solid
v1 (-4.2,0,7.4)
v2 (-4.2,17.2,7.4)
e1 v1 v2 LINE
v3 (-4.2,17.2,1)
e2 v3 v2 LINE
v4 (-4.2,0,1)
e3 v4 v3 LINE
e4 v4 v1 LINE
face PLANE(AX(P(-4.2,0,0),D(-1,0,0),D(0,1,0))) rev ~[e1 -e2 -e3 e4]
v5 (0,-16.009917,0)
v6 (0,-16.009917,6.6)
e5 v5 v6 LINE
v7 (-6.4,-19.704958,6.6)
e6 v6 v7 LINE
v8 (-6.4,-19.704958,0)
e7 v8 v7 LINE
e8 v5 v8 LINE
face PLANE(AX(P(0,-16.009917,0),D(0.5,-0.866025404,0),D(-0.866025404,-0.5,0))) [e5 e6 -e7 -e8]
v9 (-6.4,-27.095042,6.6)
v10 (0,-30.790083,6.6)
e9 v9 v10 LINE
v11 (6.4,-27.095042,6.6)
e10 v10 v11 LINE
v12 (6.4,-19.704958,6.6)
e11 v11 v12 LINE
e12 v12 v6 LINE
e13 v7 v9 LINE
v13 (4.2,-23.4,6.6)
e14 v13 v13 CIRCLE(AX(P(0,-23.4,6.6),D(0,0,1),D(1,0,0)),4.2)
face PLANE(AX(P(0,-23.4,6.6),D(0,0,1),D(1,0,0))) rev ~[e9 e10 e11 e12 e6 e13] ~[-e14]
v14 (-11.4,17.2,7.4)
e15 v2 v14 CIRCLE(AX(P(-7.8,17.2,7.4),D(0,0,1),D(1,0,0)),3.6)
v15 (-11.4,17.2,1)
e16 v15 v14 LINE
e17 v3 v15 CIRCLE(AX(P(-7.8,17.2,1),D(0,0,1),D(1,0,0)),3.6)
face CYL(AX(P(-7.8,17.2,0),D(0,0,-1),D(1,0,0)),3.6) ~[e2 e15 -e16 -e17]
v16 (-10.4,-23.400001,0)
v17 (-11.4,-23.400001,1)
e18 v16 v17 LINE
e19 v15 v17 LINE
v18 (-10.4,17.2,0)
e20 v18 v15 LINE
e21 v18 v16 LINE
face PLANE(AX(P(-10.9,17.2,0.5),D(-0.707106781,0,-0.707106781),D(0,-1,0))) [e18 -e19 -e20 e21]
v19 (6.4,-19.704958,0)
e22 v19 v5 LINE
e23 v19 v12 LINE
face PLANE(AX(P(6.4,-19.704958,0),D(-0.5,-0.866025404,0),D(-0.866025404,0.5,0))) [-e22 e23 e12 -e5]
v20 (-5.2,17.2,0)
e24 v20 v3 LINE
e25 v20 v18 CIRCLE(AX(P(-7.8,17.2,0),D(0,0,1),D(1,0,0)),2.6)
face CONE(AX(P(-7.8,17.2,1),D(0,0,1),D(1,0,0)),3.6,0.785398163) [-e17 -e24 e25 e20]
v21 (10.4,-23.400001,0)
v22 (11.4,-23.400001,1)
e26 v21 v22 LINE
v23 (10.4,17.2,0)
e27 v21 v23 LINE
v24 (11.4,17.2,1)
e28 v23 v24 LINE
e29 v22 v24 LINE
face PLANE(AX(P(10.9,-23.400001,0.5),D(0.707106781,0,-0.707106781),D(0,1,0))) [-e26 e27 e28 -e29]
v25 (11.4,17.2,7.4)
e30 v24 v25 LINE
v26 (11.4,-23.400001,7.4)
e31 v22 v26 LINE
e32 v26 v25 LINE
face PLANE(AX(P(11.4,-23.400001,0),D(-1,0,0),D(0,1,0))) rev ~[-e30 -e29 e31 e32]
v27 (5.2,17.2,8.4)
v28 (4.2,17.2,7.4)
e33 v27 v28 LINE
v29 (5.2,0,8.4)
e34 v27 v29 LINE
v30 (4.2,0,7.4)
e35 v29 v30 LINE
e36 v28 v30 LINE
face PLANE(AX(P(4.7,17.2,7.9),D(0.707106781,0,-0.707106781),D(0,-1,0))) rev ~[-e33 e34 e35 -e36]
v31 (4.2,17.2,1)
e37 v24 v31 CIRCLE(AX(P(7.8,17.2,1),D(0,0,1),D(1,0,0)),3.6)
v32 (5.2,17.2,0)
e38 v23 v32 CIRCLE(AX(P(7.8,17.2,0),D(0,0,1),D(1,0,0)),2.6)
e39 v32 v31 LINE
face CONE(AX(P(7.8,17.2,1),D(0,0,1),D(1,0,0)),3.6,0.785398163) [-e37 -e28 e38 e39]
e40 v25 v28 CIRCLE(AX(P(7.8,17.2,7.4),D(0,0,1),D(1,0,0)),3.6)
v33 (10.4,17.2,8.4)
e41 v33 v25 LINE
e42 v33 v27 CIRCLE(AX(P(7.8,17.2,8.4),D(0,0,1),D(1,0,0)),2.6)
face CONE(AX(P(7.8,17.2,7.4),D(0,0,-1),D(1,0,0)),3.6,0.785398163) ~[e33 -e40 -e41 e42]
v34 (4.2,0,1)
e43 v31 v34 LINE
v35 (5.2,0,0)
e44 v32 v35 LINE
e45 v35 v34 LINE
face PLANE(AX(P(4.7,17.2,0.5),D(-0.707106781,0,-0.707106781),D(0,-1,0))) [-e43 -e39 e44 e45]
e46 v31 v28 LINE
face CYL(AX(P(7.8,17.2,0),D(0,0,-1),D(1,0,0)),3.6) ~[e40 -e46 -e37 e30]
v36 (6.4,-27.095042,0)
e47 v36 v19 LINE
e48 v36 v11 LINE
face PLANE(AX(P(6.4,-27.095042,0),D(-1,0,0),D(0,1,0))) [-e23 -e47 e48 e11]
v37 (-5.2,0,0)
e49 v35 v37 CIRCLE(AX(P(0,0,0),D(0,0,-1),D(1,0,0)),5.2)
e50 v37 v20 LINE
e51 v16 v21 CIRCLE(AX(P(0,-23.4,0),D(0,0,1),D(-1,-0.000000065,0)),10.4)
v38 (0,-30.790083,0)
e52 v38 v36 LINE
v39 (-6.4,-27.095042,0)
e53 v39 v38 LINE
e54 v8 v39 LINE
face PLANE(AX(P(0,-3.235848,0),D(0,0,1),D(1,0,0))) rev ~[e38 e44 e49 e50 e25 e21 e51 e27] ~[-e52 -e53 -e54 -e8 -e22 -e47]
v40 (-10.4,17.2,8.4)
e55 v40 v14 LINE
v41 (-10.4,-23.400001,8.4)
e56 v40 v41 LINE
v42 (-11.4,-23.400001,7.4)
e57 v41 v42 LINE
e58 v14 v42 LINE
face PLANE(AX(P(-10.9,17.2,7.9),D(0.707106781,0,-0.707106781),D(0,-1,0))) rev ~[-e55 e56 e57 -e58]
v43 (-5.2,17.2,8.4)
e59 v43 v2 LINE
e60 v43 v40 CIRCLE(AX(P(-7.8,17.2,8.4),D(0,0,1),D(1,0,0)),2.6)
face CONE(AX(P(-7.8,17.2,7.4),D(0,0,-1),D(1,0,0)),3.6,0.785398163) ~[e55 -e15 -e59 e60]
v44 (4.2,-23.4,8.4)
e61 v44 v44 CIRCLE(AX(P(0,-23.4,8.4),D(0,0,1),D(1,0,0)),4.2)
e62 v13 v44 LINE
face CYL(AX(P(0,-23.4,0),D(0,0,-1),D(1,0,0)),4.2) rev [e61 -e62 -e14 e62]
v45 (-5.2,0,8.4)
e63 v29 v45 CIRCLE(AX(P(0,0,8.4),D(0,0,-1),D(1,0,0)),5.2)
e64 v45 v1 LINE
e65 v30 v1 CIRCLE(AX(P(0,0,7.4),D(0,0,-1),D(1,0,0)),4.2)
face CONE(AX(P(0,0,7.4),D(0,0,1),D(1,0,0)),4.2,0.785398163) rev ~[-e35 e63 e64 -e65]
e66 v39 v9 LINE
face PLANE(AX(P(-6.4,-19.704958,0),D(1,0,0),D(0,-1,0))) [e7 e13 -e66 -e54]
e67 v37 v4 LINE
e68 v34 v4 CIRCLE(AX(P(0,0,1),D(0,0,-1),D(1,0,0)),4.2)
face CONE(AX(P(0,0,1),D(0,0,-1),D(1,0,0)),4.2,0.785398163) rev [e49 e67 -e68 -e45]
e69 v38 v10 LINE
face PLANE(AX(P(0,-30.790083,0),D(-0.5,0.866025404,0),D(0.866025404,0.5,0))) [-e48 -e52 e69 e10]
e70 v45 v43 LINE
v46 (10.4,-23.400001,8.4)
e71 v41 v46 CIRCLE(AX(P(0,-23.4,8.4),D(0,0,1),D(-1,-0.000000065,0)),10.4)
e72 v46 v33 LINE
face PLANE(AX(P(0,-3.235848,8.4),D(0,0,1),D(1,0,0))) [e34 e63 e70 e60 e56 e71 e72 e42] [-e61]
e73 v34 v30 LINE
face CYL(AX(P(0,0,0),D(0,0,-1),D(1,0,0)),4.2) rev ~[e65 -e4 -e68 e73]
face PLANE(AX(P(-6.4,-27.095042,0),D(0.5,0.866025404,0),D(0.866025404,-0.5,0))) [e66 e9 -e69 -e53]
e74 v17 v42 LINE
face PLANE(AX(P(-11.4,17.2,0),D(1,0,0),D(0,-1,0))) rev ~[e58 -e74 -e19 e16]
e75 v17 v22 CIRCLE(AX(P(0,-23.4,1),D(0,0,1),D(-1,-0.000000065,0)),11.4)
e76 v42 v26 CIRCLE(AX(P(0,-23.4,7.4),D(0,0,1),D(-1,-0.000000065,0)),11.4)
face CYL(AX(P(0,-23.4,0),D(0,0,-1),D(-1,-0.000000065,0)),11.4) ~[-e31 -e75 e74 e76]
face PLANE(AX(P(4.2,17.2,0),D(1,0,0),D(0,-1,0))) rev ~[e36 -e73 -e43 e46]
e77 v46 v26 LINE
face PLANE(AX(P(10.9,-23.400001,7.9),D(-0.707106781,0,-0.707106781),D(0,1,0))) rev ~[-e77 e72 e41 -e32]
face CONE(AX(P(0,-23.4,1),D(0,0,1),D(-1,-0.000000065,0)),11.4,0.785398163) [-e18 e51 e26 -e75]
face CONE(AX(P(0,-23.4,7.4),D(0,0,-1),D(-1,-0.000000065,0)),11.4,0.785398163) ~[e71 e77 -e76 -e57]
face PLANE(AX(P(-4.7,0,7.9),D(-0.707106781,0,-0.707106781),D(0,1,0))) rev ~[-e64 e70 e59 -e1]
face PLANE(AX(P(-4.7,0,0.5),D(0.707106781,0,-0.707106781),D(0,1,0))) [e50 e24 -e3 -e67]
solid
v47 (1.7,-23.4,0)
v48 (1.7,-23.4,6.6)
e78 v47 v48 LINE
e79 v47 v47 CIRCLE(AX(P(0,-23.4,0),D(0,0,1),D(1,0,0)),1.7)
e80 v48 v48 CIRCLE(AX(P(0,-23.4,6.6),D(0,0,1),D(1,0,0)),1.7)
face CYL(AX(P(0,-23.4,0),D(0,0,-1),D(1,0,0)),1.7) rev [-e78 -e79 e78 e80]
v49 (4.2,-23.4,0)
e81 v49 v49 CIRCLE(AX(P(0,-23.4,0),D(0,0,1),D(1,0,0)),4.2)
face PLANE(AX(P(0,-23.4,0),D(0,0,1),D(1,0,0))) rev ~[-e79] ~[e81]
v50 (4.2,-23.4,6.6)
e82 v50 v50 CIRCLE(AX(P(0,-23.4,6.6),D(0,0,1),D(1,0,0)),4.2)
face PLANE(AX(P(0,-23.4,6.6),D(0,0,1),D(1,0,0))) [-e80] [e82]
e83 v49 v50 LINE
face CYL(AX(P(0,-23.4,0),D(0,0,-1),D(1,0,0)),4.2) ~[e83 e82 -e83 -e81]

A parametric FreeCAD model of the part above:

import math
import FreeCAD as App
import Part
import Sketcher
from FreeCAD import Vector
Q = App.Units.Quantity


def edges_at(feature, points):
    """Names of the edges that pass closest to the given points."""
    edges = feature.Shape.Edges
    near = lambda p: min(range(len(edges)), key=lambda i: edges[i].distToShape(Part.Vertex(*p))[0])
    return sorted({f"Edge{near(p) + 1}" for p in points})


def faces_at(feature, points):
    """Names of the faces that lie closest to the given points."""
    faces = feature.Shape.Faces
    near = lambda p: min(range(len(faces)), key=lambda i: faces[i].distToShape(Part.Vertex(*p))[0])
    return sorted({f"Face{near(p) + 1}" for p in points})

doc = App.newDocument("Part")
params = doc.addObject("Spreadsheet::Sheet", "Params")
for row, (alias, value) in enumerate([
    ("sketch1_diameter", "8.4 mm"),
    ("sketch1_radius", "3.6 mm"),
    ("sketch1_height", "17.2 mm"),
    ("sketch1_height2", "40.600001 mm"),
    ("pad1_length", "8.4 mm"),
    ("sketch2_diameter", "8.4 mm"),
    ("pocket1_length", "6.6 mm"),
    ("chamfer_size", "1 mm"),
    ("sketch3_diameter", "8.4 mm"),
    ("pad2_length", "6.6 mm"),
    ("thickness_wall", "2.5 mm"),
], start=1):
    params.set(f"A{row}", alias)
    params.set(f"B{row}", "=" + value)
    params.setAlias(f"B{row}", alias)

body = doc.addObject("PartDesign::Body", "Body")

# Sketch on XY plane
sketch1 = body.newObject("Sketcher::SketchObject", "Sketch")
sketch1.AttachmentSupport = (doc.getObject("XY_Plane"), [""])
sketch1.MapMode = "FlatFace"
sketch1.addGeometry([
    Part.LineSegment(Vector(4.2, 17.2, 0), Vector(4.2, 0, 0)),  # 0
    Part.ArcOfCircle(Part.Circle(Vector(0, 0, 0), Vector(0, 0, 1), 4.2), math.radians(180), math.radians(360)),  # 1
    Part.LineSegment(Vector(-4.2, 0, 0), Vector(-4.2, 17.2, 0)),  # 2
    Part.ArcOfCircle(Part.Circle(Vector(-7.8, 17.2, 0), Vector(0, 0, 1), 3.6), math.radians(0), math.radians(180)),  # 3
    Part.LineSegment(Vector(-11.4, 17.2, 0), Vector(-11.4, -23.400001, 0)),  # 4
    Part.ArcOfCircle(Part.Circle(Vector(0, -23.4, 0), Vector(0, 0, 1), 11.4), math.radians(-179.999996), math.radians(-0.000004)),  # 5
    Part.LineSegment(Vector(11.4, -23.400001, 0), Vector(11.4, 17.2, 0)),  # 6
    Part.ArcOfCircle(Part.Circle(Vector(7.8, 17.2, 0), Vector(0, 0, 1), 3.6), math.radians(0), math.radians(180)),  # 7
    Part.Circle(Vector(0, -23.4, 0), Vector(0, 0, 1), 4.2),  # 8
], False)
sketch1.addConstraint([
    Sketcher.Constraint("Tangent", 0, 2, 1, 2),
    Sketcher.Constraint("Tangent", 1, 1, 2, 1),
    Sketcher.Constraint("Tangent", 2, 2, 3, 1),
    Sketcher.Constraint("Tangent", 3, 2, 4, 1),
    Sketcher.Constraint("Tangent", 4, 2, 5, 1),
    Sketcher.Constraint("Tangent", 5, 2, 6, 1),
    Sketcher.Constraint("Tangent", 6, 2, 7, 1),
    Sketcher.Constraint("Tangent", 7, 2, 0, 1),
    Sketcher.Constraint("Vertical", 0),
    Sketcher.Constraint("Vertical", 2),
    Sketcher.Constraint("Vertical", 4),
    Sketcher.Constraint("Vertical", 6),
    Sketcher.Constraint("Coincident", 1, 3, -1, 1),
    Sketcher.Constraint("Coincident", 8, 3, 5, 3),
    Sketcher.Constraint("Equal", 3, 7),
    Sketcher.Constraint("Equal", 1, 8),
    Sketcher.Constraint("Horizontal", 3, 3, 7, 3),
    Sketcher.Constraint("Diameter", 8, 8.4),
    Sketcher.Constraint("Radius", 3, 3.6),
    Sketcher.Constraint("DistanceY", 0, 2, 0, 1, 17.2),
    Sketcher.Constraint("DistanceY", 4, 2, 4, 1, 40.600001),
])
sketch1.setExpression("Constraints[17]", "Params.sketch1_diameter")
sketch1.setExpression("Constraints[18]", "Params.sketch1_radius")
sketch1.setExpression("Constraints[19]", "Params.sketch1_height")
sketch1.setExpression("Constraints[20]", "Params.sketch1_height2")
pad1 = body.newObject("PartDesign::Pad", "Pad")
pad1.Profile = sketch1
pad1.setExpression("Length", "Params.pad1_length")

# Sketch on XY plane
sketch2 = body.newObject("Sketcher::SketchObject", "Sketch001")
sketch2.AttachmentSupport = (doc.getObject("XY_Plane"), [""])
sketch2.MapMode = "FlatFace"
sketch2.addGeometry([
    Part.LineSegment(Vector(6.4, -27.095042, 0), Vector(6.4, -19.704958, 0)),  # 0
    Part.LineSegment(Vector(6.4, -19.704958, 0), Vector(0, -16.009917, 0)),  # 1
    Part.LineSegment(Vector(0, -16.009917, 0), Vector(-6.4, -19.704958, 0)),  # 2
    Part.LineSegment(Vector(-6.4, -19.704958, 0), Vector(-6.4, -27.095042, 0)),  # 3
    Part.LineSegment(Vector(-6.4, -27.095042, 0), Vector(0, -30.790083, 0)),  # 4
    Part.LineSegment(Vector(0, -30.790083, 0), Vector(6.4, -27.095042, 0)),  # 5
    Part.Circle(Vector(0, -23.4, 0), Vector(0, 0, 1), 4.2),  # 6
], False)
sketch2.addConstraint([
    Sketcher.Constraint("Coincident", 0, 2, 1, 1),
    Sketcher.Constraint("Coincident", 1, 2, 2, 1),
    Sketcher.Constraint("Coincident", 2, 2, 3, 1),
    Sketcher.Constraint("Coincident", 3, 2, 4, 1),
    Sketcher.Constraint("Coincident", 4, 2, 5, 1),
    Sketcher.Constraint("Coincident", 5, 2, 0, 1),
    Sketcher.Constraint("Vertical", 0),
    Sketcher.Constraint("Vertical", 3),
    Sketcher.Constraint("Symmetric", 0, 2, 2, 2, -2),
    Sketcher.Constraint("PointOnObject", 6, 3, -2),
    Sketcher.Constraint("PointOnObject", 1, 2, -2),
    Sketcher.Constraint("PointOnObject", 4, 2, -2),
    Sketcher.Constraint("Parallel", 1, 4),
    Sketcher.Constraint("Parallel", 2, 5),
    Sketcher.Constraint("Diameter", 6, 8.4),
    Sketcher.Constraint("Angle", 1, Q("150 deg")),
    Sketcher.Constraint("DistanceY", 6, 3, -1, 1, 23.4),
    Sketcher.Constraint("DistanceX", -1, 1, 0, 2, 6.4),
    Sketcher.Constraint("DistanceY", 0, 1, 0, 2, 7.390083),
    Sketcher.Constraint("DistanceY", 0, 2, -1, 1, 19.704958),
])
sketch2.setExpression("Constraints[14]", "Params.sketch2_diameter")
pocket1 = body.newObject("PartDesign::Pocket", "Pocket")
pocket1.Profile = sketch2
pocket1.setExpression("Length", "Params.pocket1_length")
pocket1.Reversed = True
doc.recompute()

chamfer = body.newObject("PartDesign::Chamfer", "Chamfer")
chamfer.Base = (pocket1, edges_at(pocket1, [(11.4, -3.1, 8.4), (-11.4, -3.1, 0)]))
chamfer.setExpression("Size", "Params.chamfer_size")
body2 = doc.addObject("PartDesign::Body", "Body001")

# Sketch on XY plane
sketch3 = body2.newObject("Sketcher::SketchObject", "Sketch002")
sketch3.AttachmentSupport = (doc.getObject("XY_Plane001"), [""])
sketch3.MapMode = "FlatFace"
sketch3.addGeometry(Part.Circle(Vector(0, -23.4, 0), Vector(0, 0, 1), 4.2), False)
sketch3.addConstraint([
    Sketcher.Constraint("PointOnObject", 0, 3, -2),
    Sketcher.Constraint("Diameter", 0, 8.4),
    Sketcher.Constraint("DistanceY", 0, 3, -1, 1, 23.4),
])
sketch3.setExpression("Constraints[1]", "Params.sketch3_diameter")
pad2 = body2.newObject("PartDesign::Pad", "Pad001")
pad2.Profile = sketch3
pad2.setExpression("Length", "Params.pad2_length")
doc.recompute()

thickness = body2.newObject("PartDesign::Thickness", "Thickness")
thickness.Base = (pad2, faces_at(pad2, [(0, -23.4, 6.6), (0, -23.4, 0)]))
thickness.setExpression("Value", "Params.thickness_wall")
thickness.Reversed = True
thickness.Join = "Arc"

doc.recompute()
